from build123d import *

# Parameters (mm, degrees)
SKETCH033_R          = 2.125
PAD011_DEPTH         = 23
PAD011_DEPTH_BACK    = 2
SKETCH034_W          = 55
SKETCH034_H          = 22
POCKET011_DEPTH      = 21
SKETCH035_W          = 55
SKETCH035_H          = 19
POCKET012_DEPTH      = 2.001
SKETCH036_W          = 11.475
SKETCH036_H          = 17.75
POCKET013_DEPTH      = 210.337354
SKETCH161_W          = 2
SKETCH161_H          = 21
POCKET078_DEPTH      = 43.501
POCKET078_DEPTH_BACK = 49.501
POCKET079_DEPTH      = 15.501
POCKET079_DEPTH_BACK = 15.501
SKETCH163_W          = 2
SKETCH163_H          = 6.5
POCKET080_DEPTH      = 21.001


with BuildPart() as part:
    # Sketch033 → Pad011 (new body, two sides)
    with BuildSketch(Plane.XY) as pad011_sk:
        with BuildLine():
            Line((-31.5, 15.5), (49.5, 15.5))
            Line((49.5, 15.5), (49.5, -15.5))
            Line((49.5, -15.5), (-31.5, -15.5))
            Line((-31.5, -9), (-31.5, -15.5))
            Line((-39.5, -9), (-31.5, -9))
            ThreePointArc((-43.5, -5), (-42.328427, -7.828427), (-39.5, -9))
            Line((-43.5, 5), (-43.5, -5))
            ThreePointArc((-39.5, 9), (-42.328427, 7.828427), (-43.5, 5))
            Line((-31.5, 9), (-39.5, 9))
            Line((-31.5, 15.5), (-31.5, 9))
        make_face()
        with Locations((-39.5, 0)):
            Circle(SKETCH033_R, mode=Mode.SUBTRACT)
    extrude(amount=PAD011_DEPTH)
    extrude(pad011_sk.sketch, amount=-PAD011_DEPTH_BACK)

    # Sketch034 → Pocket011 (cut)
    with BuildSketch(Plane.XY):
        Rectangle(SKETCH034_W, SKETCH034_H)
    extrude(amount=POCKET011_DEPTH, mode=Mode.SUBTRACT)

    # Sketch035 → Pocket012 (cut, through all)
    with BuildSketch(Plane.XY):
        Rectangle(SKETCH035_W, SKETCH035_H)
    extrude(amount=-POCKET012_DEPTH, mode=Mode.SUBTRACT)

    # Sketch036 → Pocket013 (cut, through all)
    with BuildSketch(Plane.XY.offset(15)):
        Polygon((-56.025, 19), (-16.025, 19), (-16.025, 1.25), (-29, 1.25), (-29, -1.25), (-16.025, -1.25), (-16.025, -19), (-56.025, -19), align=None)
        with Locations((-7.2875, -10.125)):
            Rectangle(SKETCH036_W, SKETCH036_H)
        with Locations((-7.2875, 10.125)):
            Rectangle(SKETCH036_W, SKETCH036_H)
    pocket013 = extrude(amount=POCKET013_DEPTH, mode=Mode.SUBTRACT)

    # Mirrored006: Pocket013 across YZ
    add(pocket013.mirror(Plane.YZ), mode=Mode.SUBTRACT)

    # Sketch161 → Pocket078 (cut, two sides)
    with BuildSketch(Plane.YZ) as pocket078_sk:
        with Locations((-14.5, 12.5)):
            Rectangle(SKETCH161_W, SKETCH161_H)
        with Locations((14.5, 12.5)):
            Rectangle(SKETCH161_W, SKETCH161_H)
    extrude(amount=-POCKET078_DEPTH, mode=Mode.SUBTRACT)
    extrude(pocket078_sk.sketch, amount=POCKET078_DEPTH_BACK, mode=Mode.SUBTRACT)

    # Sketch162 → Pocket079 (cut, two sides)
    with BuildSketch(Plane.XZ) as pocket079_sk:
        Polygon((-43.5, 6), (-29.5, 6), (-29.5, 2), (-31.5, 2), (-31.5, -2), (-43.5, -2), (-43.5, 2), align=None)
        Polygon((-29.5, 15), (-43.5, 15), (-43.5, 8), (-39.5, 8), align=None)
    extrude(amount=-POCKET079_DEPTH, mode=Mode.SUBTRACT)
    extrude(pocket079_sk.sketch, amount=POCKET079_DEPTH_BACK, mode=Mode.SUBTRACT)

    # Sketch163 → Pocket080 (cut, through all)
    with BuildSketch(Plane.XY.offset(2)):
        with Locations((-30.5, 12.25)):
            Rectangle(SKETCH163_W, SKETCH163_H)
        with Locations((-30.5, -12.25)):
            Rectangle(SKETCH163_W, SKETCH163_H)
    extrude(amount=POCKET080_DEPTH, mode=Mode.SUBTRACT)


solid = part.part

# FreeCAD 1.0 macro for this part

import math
import FreeCAD as App
import Part
import Sketcher


def add_polygon(sketch, points):
    """Adds a closed chain of lines whose ends are joined by coincident constraints."""
    first, n = sketch.GeometryCount, len(points)
    for a, b in zip(points, points[1:] + points[:1]):
        sketch.addGeometry(Part.LineSegment(App.Vector(*a, 0), App.Vector(*b, 0)), False)
    for i in range(n):
        sketch.addConstraint(Sketcher.Constraint("Coincident", first + i, 2, first + (i + 1) % n, 1))

doc = App.newDocument("Part")
params = doc.addObject("Spreadsheet::Sheet", "Params")
for row, (alias, value) in enumerate([
    ("sketch1_radius", "4 mm"),
    ("sketch1_diameter", "4.25 mm"),
    ("sketch1_width", "81 mm"),
    ("sketch1_width2", "8 mm"),
    ("sketch1_height", "10 mm"),
    ("pad1_length", "23 mm"),
    ("pad1_length2", "2 mm"),
    ("sketch2_width", "55 mm"),
    ("sketch2_height", "22 mm"),
    ("pocket1_length", "21 mm"),
    ("sketch3_width", "55 mm"),
    ("sketch3_height", "19 mm"),
    ("sketch4_width", "40 mm"),
    ("sketch4_height", "38 mm"),
    ("sketch4_height2", "2.5 mm"),
    ("sketch5_width", "2 mm"),
    ("sketch5_height", "21 mm"),
    ("sketch6_width", "14 mm"),
    ("sketch6_width2", "12 mm"),
    ("sketch6_width3", "4 mm"),
    ("sketch6_height", "7 mm"),
    ("sketch7_width", "2 mm"),
    ("sketch7_height", "6.5 mm"),
], start=1):
    params.set(f"A{row}", alias)
    params.set(f"B{row}", "=" + value)
    params.setAlias(f"B{row}", alias)

body = doc.addObject("PartDesign::Body", "Body")

sketch1 = body.newObject("Sketcher::SketchObject", "Sketch")
sketch1.AttachmentSupport = (doc.getObject("XY_Plane"), [""])
sketch1.MapMode = "FlatFace"
sketch1.addGeometry([
    Part.LineSegment(App.Vector(49.5, 15.5, 0), App.Vector(-31.5, 15.5, 0)),
    Part.LineSegment(App.Vector(-31.5, 15.5, 0), App.Vector(-31.5, 9, 0)),
    Part.LineSegment(App.Vector(-31.5, 9, 0), App.Vector(-39.5, 9, 0)),
    Part.ArcOfCircle(Part.Circle(App.Vector(-39.5, 5, 0), App.Vector(0, 0, 1), 4), math.radians(90), math.radians(180)),
    Part.LineSegment(App.Vector(-43.5, 5, 0), App.Vector(-43.5, -5, 0)),
    Part.ArcOfCircle(Part.Circle(App.Vector(-39.5, -5, 0), App.Vector(0, 0, 1), 4), math.radians(-180), math.radians(-90)),
    Part.LineSegment(App.Vector(-39.5, -9, 0), App.Vector(-31.5, -9, 0)),
    Part.LineSegment(App.Vector(-31.5, -9, 0), App.Vector(-31.5, -15.5, 0)),
    Part.LineSegment(App.Vector(-31.5, -15.5, 0), App.Vector(49.5, -15.5, 0)),
    Part.LineSegment(App.Vector(49.5, -15.5, 0), App.Vector(49.5, 15.5, 0)),
    Part.Circle(App.Vector(-39.5, 0, 0), App.Vector(0, 0, 1), 2.1),
], False)
sketch1.addConstraint([
    Sketcher.Constraint("Coincident", 0, 2, 1, 1),
    Sketcher.Constraint("Coincident", 1, 2, 2, 1),
    Sketcher.Constraint("Tangent", 2, 2, 3, 1),
    Sketcher.Constraint("Tangent", 3, 2, 4, 1),
    Sketcher.Constraint("Tangent", 4, 2, 5, 1),
    Sketcher.Constraint("Tangent", 5, 2, 6, 1),
    Sketcher.Constraint("Coincident", 6, 2, 7, 1),
    Sketcher.Constraint("Coincident", 7, 2, 8, 1),
    Sketcher.Constraint("Coincident", 8, 2, 9, 1),
    Sketcher.Constraint("Coincident", 9, 2, 0, 1),
    Sketcher.Constraint("Horizontal", 0),
    Sketcher.Constraint("Vertical", 1),
    Sketcher.Constraint("Horizontal", 2),
    Sketcher.Constraint("Vertical", 4),
    Sketcher.Constraint("Horizontal", 6),
    Sketcher.Constraint("Vertical", 7),
    Sketcher.Constraint("Horizontal", 8),
    Sketcher.Constraint("Vertical", 9),
    Sketcher.Constraint("Equal", 3, 5),
    Sketcher.Constraint("Symmetric", 1, 2, 6, 2, -1),
    Sketcher.Constraint("PointOnObject", 10, 3, -1),
    Sketcher.Constraint("Vertical", 5, 3, 10, 3),
    Sketcher.Constraint("Equal", 1, 7),
    Sketcher.Constraint("Radius", 3, 4.0),
    Sketcher.Constraint("Diameter", 10, 4.25),
    Sketcher.Constraint("DistanceX", 0, 2, 0, 1, 81.0),
    Sketcher.Constraint("DistanceX", 2, 2, 2, 1, 8.0),
    Sketcher.Constraint("DistanceY", 4, 2, 4, 1, 10.0),
    Sketcher.Constraint("DistanceY", 9, 1, 9, 2, 31.0),
    Sketcher.Constraint("DistanceX", 3, 3, -1, 1, 39.5),
])
sketch1.setExpression("Constraints[23]", "Params.sketch1_radius")
sketch1.setExpression("Constraints[24]", "Params.sketch1_diameter")
sketch1.setExpression("Constraints[25]", "Params.sketch1_width")
sketch1.setExpression("Constraints[26]", "Params.sketch1_width2")
sketch1.setExpression("Constraints[27]", "Params.sketch1_height")
pad1 = body.newObject("PartDesign::Pad", "Pad")
pad1.Profile = sketch1
pad1.Type = "TwoLengths"
pad1.setExpression("Length", "Params.pad1_length")
pad1.setExpression("Length2", "Params.pad1_length2")

sketch2 = body.newObject("Sketcher::SketchObject", "Sketch001")
sketch2.AttachmentSupport = (doc.getObject("XY_Plane"), [""])
sketch2.MapMode = "FlatFace"
add_polygon(sketch2, [(-28, 11), (-28, -11), (28, -11), (28, 11)])
sketch2.addConstraint([
    Sketcher.Constraint("Vertical", 0),
    Sketcher.Constraint("Horizontal", 1),
    Sketcher.Constraint("Vertical", 2),
    Sketcher.Constraint("Horizontal", 3),
    Sketcher.Constraint("Symmetric", 0, 2, 2, 2, -1, 1),
    Sketcher.Constraint("DistanceX", 1, 1, 1, 2, 55.0),
    Sketcher.Constraint("DistanceY", 0, 2, 0, 1, 22.0),
])
sketch2.setExpression("Constraints[9]", "Params.sketch2_width")
sketch2.setExpression("Constraints[10]", "Params.sketch2_height")
pocket1 = body.newObject("PartDesign::Pocket", "Pocket")
pocket1.Profile = sketch2
pocket1.setExpression("Length", "Params.pocket1_length")
pocket1.Reversed = True

sketch3 = body.newObject("Sketcher::SketchObject", "Sketch002")
sketch3.AttachmentSupport = (doc.getObject("XY_Plane"), [""])
sketch3.MapMode = "FlatFace"
add_polygon(sketch3, [(-28, 10), (-28, -10), (28, -10), (28, 10)])
sketch3.addConstraint([
    Sketcher.Constraint("Vertical", 0),
    Sketcher.Constraint("Horizontal", 1),
    Sketcher.Constraint("Vertical", 2),
    Sketcher.Constraint("Horizontal", 3),
    Sketcher.Constraint("Symmetric", 0, 2, 2, 2, -1, 1),
    Sketcher.Constraint("DistanceX", 1, 1, 1, 2, 55.0),
    Sketcher.Constraint("DistanceY", 0, 2, 0, 1, 19.0),
])
sketch3.setExpression("Constraints[9]", "Params.sketch3_width")
sketch3.setExpression("Constraints[10]", "Params.sketch3_height")
pocket2 = body.newObject("PartDesign::Pocket", "Pocket001")
pocket2.Profile = sketch3
pocket2.Type = "ThroughAll"

sketch4 = body.newObject("Sketcher::SketchObject", "Sketch003")
sketch4.AttachmentSupport = (doc.getObject("XY_Plane"), [""])
sketch4.MapMode = "FlatFace"
sketch4.AttachmentOffset = App.Placement(App.Vector(0, 0, 15), App.Rotation())
add_polygon(sketch4, [(-16, 19), (-56, 19), (-56, -19), (-16, -19), (-16, -1.2), (-29, -1.2), (-29, 1.2), (-16, 1.2)])
add_polygon(sketch4, [(-13, -1.2), (-13, -19), (-1.6, -19), (-1.6, -1.2)])
add_polygon(sketch4, [(-13, 19), (-13, 1.2), (-1.6, 1.2), (-1.6, 19)])
sketch4.addConstraint([
    Sketcher.Constraint("Horizontal", 0),
    Sketcher.Constraint("Vertical", 1),
    Sketcher.Constraint("Horizontal", 2),
    Sketcher.Constraint("Vertical", 3),
    Sketcher.Constraint("Horizontal", 4),
    Sketcher.Constraint("Vertical", 5),
    Sketcher.Constraint("Horizontal", 6),
    Sketcher.Constraint("Vertical", 7),
    Sketcher.Constraint("Vertical", 8),
    Sketcher.Constraint("Horizontal", 9),
    Sketcher.Constraint("Vertical", 10),
    Sketcher.Constraint("Horizontal", 11),
    Sketcher.Constraint("Vertical", 12),
    Sketcher.Constraint("Horizontal", 13),
    Sketcher.Constraint("Vertical", 14),
    Sketcher.Constraint("Horizontal", 15),
    Sketcher.Constraint("Symmetric", 3, 2, 6, 2, -1),
    Sketcher.Constraint("Symmetric", 11, 2, 12, 2, -1),
    Sketcher.Constraint("Symmetric", 9, 2, 14, 2, -1),
    Sketcher.Constraint("Horizontal", 2, 2, 8, 2),
    Sketcher.Constraint("Horizontal", 4, 2, 10, 2),
    Sketcher.Constraint("Horizontal", 7, 2, 14, 2),
    Sketcher.Constraint("DistanceX", 0, 2, 0, 1, 40.0),
    Sketcher.Constraint("DistanceY", 1, 2, 1, 1, 38.0),
    Sketcher.Constraint("DistanceY", 5, 1, 5, 2, 2.5),
    Sketcher.Constraint("DistanceX", 4, 2, -1, 1, 29.0),
    Sketcher.Constraint("DistanceX", 2, 2, 8, 2, 3.0),
    Sketcher.Constraint("DistanceX", 4, 2, 4, 1, 12.975),
    Sketcher.Constraint("DistanceX", 9, 1, 9, 2, 11.475),
])
sketch4.setExpression("Constraints[38]", "Params.sketch4_width")
sketch4.setExpression("Constraints[39]", "Params.sketch4_height")
sketch4.setExpression("Constraints[40]", "Params.sketch4_height2")
pocket3 = body.newObject("PartDesign::Pocket", "Pocket002")
pocket3.Profile = sketch4
pocket3.Type = "ThroughAll"
pocket3.Reversed = True
doc.recompute()

mirrored = body.newObject("PartDesign::Mirrored", "Mirrored")
mirrored.Originals = [pocket3]
mirrored.MirrorPlane = (doc.getObject("YZ_Plane"), [""])
body.Tip = mirrored

sketch5 = body.newObject("Sketcher::SketchObject", "Sketch004")
sketch5.AttachmentSupport = (doc.getObject("YZ_Plane"), [""])
sketch5.MapMode = "FlatFace"
add_polygon(sketch5, [(-15.5, 23), (-15.5, 2), (-13.5, 2), (-13.5, 23)])
add_polygon(sketch5, [(13.5, 23), (13.5, 2), (15.5, 2), (15.5, 23)])
sketch5.addConstraint([
    Sketcher.Constraint("Vertical", 0),
    Sketcher.Constraint("Horizontal", 1),
    Sketcher.Constraint("Vertical", 2),
    Sketcher.Constraint("Horizontal", 3),
    Sketcher.Constraint("Vertical", 4),
    Sketcher.Constraint("Horizontal", 5),
    Sketcher.Constraint("Vertical", 6),
    Sketcher.Constraint("Horizontal", 7),
    Sketcher.Constraint("Symmetric", 1, 2, 4, 2, -2),
    Sketcher.Constraint("Symmetric", 3, 2, 6, 2, -2),
    Sketcher.Constraint("DistanceX", 1, 1, 1, 2, 2.0),
    Sketcher.Constraint("DistanceY", 0, 2, 0, 1, 21.0),
    Sketcher.Constraint("DistanceY", -1, 1, 0, 2, 2.0),
    Sketcher.Constraint("DistanceX", 1, 2, 4, 2, 27.0),
])
sketch5.setExpression("Constraints[18]", "Params.sketch5_width")
sketch5.setExpression("Constraints[19]", "Params.sketch5_height")
pocket4 = body.newObject("PartDesign::Pocket", "Pocket003")
pocket4.Profile = sketch5
pocket4.Type = "ThroughAll"
pocket4.Midplane = True

sketch6 = body.newObject("Sketcher::SketchObject", "Sketch005")
sketch6.AttachmentSupport = (doc.getObject("XZ_Plane"), [""])
sketch6.MapMode = "FlatFace"
add_polygon(sketch6, [(-29.5, 6), (-43.5, 6), (-43.5, -2), (-31.5, -2), (-31.5, 2), (-29.5, 2)])
add_polygon(sketch6, [(-29.5, 15), (-43.5, 15), (-43.5, 8), (-39.5, 8)])
sketch6.addConstraint([
    Sketcher.Constraint("Horizontal", 0),
    Sketcher.Constraint("Vertical", 1),
    Sketcher.Constraint("Horizontal", 2),
    Sketcher.Constraint("Vertical", 3),
    Sketcher.Constraint("Horizontal", 4),
    Sketcher.Constraint("Vertical", 5),
    Sketcher.Constraint("Horizontal", 6),
    Sketcher.Constraint("Vertical", 7),
    Sketcher.Constraint("Horizontal", 8),
    Sketcher.Constraint("Vertical", 1, 2, 6, 2),
    Sketcher.Constraint("Vertical", 5, 2, 9, 2),
    Sketcher.Constraint("Equal", 8, 3),
    Sketcher.Constraint("Equal", 3, 5),
    Sketcher.Constraint("DistanceX", 0, 2, 0, 1, 14.0),
    Sketcher.Constraint("DistanceX", 2, 1, 2, 2, 12.0),
    Sketcher.Constraint("DistanceX", 8, 1, 8, 2, 4.0),
    Sketcher.Constraint("DistanceY", 7, 2, 7, 1, 7.0),
    Sketcher.Constraint("DistanceY", -1, 1, 0, 2, 6.0),
    Sketcher.Constraint("DistanceY", -1, 1, 6, 2, 15.0),
    Sketcher.Constraint("DistanceX", 0, 2, -1, 1, 43.5),
])
sketch6.setExpression("Constraints[23]", "Params.sketch6_width")
sketch6.setExpression("Constraints[24]", "Params.sketch6_width2")
sketch6.setExpression("Constraints[25]", "Params.sketch6_width3")
sketch6.setExpression("Constraints[26]", "Params.sketch6_height")
pocket5 = body.newObject("PartDesign::Pocket", "Pocket004")
pocket5.Profile = sketch6
pocket5.Type = "ThroughAll"
pocket5.Midplane = True

sketch7 = body.newObject("Sketcher::SketchObject", "Sketch006")
sketch7.AttachmentSupport = (doc.getObject("XY_Plane"), [""])
sketch7.MapMode = "FlatFace"
sketch7.AttachmentOffset = App.Placement(App.Vector(0, 0, 2), App.Rotation())
add_polygon(sketch7, [(-31.5, 15.5), (-31.5, 9), (-29.5, 9), (-29.5, 15.5)])
add_polygon(sketch7, [(-31.5, -9), (-31.5, -15.5), (-29.5, -15.5), (-29.5, -9)])
sketch7.addConstraint([
    Sketcher.Constraint("Vertical", 0),
    Sketcher.Constraint("Horizontal", 1),
    Sketcher.Constraint("Vertical", 2),
    Sketcher.Constraint("Horizontal", 3),
    Sketcher.Constraint("Vertical", 4),
    Sketcher.Constraint("Horizontal", 5),
    Sketcher.Constraint("Vertical", 6),
    Sketcher.Constraint("Horizontal", 7),
    Sketcher.Constraint("Symmetric", 3, 2, 4, 2, -1),
    Sketcher.Constraint("Symmetric", 1, 2, 6, 2, -1),
    Sketcher.Constraint("DistanceX", 1, 1, 1, 2, 2.0),
    Sketcher.Constraint("DistanceY", 0, 2, 0, 1, 6.5),
    Sketcher.Constraint("DistanceY", -1, 1, 0, 2, 9.0),
    Sketcher.Constraint("DistanceX", 0, 2, -1, 1, 31.5),
])
sketch7.setExpression("Constraints[18]", "Params.sketch7_width")
sketch7.setExpression("Constraints[19]", "Params.sketch7_height")
pocket6 = body.newObject("PartDesign::Pocket", "Pocket005")
pocket6.Profile = sketch7
pocket6.Type = "ThroughAll"
pocket6.Reversed = True

doc.recompute()
